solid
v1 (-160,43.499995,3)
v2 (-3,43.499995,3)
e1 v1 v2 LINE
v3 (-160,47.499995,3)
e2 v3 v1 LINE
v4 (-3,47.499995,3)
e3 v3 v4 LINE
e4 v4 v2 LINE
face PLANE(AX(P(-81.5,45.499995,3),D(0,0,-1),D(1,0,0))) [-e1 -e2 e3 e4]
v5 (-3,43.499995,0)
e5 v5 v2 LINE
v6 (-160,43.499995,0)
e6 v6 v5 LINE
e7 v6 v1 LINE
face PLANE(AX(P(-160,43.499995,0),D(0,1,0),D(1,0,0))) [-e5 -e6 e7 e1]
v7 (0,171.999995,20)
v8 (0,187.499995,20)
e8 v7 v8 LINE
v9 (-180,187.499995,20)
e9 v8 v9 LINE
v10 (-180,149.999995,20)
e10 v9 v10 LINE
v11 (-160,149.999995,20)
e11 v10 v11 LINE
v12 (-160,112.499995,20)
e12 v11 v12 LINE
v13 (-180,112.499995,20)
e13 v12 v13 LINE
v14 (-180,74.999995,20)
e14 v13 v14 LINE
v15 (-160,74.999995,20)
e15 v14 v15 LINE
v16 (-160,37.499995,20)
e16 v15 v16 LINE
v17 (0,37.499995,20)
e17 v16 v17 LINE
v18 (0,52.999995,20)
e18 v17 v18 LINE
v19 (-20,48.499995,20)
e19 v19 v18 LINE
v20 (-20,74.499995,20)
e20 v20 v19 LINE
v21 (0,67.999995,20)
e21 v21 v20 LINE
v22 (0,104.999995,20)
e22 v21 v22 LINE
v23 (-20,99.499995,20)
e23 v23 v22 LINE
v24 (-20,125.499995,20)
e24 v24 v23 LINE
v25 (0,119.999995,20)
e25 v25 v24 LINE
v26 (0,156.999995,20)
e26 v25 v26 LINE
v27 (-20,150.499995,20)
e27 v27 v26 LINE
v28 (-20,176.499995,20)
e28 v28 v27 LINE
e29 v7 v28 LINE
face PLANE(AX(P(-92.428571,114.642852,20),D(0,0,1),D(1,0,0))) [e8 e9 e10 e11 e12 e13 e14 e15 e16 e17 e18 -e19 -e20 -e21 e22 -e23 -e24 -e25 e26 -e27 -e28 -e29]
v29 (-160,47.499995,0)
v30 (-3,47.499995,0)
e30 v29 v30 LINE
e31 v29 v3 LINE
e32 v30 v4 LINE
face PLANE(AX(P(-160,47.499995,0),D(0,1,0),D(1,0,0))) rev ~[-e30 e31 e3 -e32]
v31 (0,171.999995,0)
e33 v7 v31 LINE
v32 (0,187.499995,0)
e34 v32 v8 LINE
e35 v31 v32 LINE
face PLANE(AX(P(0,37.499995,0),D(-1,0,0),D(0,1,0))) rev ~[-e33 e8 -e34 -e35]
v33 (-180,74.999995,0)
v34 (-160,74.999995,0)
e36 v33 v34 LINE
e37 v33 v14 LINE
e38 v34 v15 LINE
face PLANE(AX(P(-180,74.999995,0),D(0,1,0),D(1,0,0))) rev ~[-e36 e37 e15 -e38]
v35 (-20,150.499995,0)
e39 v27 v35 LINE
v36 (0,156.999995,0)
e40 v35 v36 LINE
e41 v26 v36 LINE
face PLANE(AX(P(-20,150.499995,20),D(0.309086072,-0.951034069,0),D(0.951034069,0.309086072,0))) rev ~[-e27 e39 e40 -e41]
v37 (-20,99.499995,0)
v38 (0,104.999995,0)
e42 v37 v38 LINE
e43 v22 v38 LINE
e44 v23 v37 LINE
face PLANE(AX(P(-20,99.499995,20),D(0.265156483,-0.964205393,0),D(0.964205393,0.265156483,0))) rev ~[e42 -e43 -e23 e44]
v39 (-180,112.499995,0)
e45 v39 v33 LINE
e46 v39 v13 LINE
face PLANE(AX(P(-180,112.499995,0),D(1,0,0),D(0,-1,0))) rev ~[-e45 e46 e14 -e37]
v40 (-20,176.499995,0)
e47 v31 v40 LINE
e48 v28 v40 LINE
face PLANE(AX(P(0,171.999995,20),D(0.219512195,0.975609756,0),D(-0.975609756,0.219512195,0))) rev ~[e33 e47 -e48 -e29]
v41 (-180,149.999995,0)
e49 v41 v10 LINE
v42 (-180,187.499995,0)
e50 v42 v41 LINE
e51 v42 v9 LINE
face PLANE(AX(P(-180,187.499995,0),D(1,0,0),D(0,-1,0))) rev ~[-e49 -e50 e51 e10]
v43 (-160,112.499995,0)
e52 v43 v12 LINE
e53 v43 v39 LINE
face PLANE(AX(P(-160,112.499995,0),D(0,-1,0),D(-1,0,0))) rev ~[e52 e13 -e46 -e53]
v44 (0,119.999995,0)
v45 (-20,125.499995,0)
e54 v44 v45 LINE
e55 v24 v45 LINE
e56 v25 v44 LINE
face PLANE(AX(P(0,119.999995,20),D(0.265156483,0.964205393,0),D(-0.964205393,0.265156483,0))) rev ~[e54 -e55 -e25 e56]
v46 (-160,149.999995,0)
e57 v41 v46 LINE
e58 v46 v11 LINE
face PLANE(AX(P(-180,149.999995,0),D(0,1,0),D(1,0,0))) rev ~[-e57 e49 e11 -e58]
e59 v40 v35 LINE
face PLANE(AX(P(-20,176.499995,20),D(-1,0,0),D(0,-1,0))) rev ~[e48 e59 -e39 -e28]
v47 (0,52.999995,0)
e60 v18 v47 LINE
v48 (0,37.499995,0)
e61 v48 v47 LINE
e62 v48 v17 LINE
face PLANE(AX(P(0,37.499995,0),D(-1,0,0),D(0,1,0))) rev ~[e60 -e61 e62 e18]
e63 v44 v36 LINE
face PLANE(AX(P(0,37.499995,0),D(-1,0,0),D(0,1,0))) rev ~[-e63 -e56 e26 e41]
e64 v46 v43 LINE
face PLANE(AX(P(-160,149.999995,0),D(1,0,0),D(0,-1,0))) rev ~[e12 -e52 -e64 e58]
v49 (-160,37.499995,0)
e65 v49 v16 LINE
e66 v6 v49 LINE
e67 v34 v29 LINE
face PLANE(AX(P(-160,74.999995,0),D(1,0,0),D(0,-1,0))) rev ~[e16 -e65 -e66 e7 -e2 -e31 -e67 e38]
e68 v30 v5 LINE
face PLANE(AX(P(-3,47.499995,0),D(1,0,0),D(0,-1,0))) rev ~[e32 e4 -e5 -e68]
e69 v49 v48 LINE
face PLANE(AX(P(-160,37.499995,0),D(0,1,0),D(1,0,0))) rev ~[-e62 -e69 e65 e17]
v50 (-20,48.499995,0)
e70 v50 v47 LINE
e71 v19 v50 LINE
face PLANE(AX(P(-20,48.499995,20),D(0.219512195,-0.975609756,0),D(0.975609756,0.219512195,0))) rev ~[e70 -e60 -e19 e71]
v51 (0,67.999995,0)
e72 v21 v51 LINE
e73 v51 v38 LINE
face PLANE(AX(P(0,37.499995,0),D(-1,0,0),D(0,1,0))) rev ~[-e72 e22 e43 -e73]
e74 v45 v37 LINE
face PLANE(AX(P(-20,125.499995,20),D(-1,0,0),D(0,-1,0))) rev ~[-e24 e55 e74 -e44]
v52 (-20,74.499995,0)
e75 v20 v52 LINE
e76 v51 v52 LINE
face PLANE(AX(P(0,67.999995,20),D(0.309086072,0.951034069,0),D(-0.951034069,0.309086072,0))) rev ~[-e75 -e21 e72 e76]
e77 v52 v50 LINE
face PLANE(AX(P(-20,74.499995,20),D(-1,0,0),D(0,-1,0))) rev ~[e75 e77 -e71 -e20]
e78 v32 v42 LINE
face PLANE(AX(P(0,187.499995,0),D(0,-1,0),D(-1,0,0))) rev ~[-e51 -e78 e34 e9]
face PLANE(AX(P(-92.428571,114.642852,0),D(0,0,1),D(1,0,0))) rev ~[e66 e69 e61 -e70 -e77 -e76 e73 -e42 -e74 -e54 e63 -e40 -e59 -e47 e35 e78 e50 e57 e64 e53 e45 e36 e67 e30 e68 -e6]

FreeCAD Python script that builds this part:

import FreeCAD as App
import Part
import Sketcher
from FreeCAD import Vector


def add_polygon(sketch, points):
    """Adds a closed chain of lines whose ends are joined by coincident constraints."""
    first, n = sketch.GeometryCount, len(points)
    for a, b in zip(points, points[1:] + points[:1]):
        sketch.addGeometry(Part.LineSegment(App.Vector(*a, 0), App.Vector(*b, 0)), False)
    for i in range(n):
        sketch.addConstraint(Sketcher.Constraint("Coincident", first + i, 2, first + (i + 1) % n, 1))

doc = App.newDocument("Part")
body = doc.addObject("PartDesign::Body", "Body")

# Sketch on XY plane
sketch1 = doc.addObject("Sketcher::SketchObject", "Sketch")
body.addObject(sketch1)
sketch1.AttachmentSupport = (doc.XY_Plane, [""])
sketch1.MapMode = "FlatFace"
add_polygon(sketch1, [(0, 187), (-180, 187), (-180, 150), (-160, 150), (-160, 112), (-180, 112), (-180, 75), (-160, 75), (-160, 37), (0, 37)])  # lines 0-9
sketch1.addConstraint([
    Sketcher.Constraint("Horizontal", 0),
    Sketcher.Constraint("Vertical", 1),
    Sketcher.Constraint("Horizontal", 2),
    Sketcher.Constraint("Vertical", 3),
    Sketcher.Constraint("Horizontal", 4),
    Sketcher.Constraint("Vertical", 5),
    Sketcher.Constraint("Horizontal", 6),
    Sketcher.Constraint("Vertical", 7),
    Sketcher.Constraint("Horizontal", 8),
    Sketcher.Constraint("Vertical", 9),
    Sketcher.Constraint("PointOnObject", 8, 2, -2),
    Sketcher.Constraint("Vertical", 1, 2, 4, 2),
    Sketcher.Constraint("Vertical", 3, 2, 6, 2),
    Sketcher.Constraint("Equal", 1, 3),
    Sketcher.Constraint("Equal", 3, 5),
    Sketcher.Constraint("Equal", 5, 7),
    Sketcher.Constraint("DistanceX", 0, 2, 0, 1, 180.0),
    Sketcher.Constraint("DistanceX", 2, 1, 2, 2, 20.0),
    Sketcher.Constraint("DistanceY", 9, 1, 9, 2, 150.0),
    Sketcher.Constraint("DistanceY", -1, 1, 0, 2, 187.499995),
])
pad1 = doc.addObject("PartDesign::Pad", "Pad")
body.addObject(pad1)
pad1.Profile = sketch1
pad1.Length = 20

# Sketch on XY plane
sketch2 = doc.addObject("Sketcher::SketchObject", "Sketch001")
body.addObject(sketch2)
sketch2.AttachmentSupport = (doc.XY_Plane, [""])
sketch2.MapMode = "FlatFace"
sketch2.AttachmentOffset = App.Placement(Vector(0, 0, 20), App.Rotation())
add_polygon(sketch2, [(0, 172), (-20, 176), (-20, 150), (0, 157)])  # lines 0-3
add_polygon(sketch2, [(0, 120), (-20, 125), (-20, 99), (0, 105)])  # lines 4-7
add_polygon(sketch2, [(0, 68), (-20, 74), (-20, 48), (0, 53)])  # lines 8-11
sketch2.addConstraint([
    Sketcher.Constraint("Vertical", 1),
    Sketcher.Constraint("Vertical", 3),
    Sketcher.Constraint("Vertical", 5),
    Sketcher.Constraint("Vertical", 7),
    Sketcher.Constraint("Vertical", 9),
    Sketcher.Constraint("Vertical", 11),
    Sketcher.Constraint("PointOnObject", 2, 2, -2),
    Sketcher.Constraint("PointOnObject", 6, 2, -2),
    Sketcher.Constraint("PointOnObject", 10, 2, -2),
    Sketcher.Constraint("Vertical", 1, 2, 4, 2),
    Sketcher.Constraint("Vertical", 5, 2, 8, 2),
    Sketcher.Constraint("Equal", 1, 5),
    Sketcher.Constraint("Equal", 3, 7),
    Sketcher.Constraint("Equal", 5, 9),
    Sketcher.Constraint("Equal", 7, 11),
    Sketcher.Constraint("Equal", 4, 6),
    Sketcher.Constraint("Equal", 2, 8),
    Sketcher.Constraint("DistanceY", 1, 2, 1, 1, 26.0),
    Sketcher.Constraint("DistanceY", 3, 1, 3, 2, 15.0),
    Sketcher.Constraint("DistanceX", 0, 2, -1, 1, 20.0),
    Sketcher.Constraint("DistanceY", 4, 2, 1, 2, 25.0),
    Sketcher.Constraint("DistanceY", 6, 2, 2, 2, 52.0),
    Sketcher.Constraint("DistanceY", 8, 2, 5, 2, 25.0),
    Sketcher.Constraint("DistanceY", -1, 1, 0, 2, 176.499995),
])
pocket1 = doc.addObject("PartDesign::Pocket", "Pocket")
body.addObject(pocket1)
pocket1.Profile = sketch2
pocket1.Length = 20

# Sketch on XY plane
sketch3 = doc.addObject("Sketcher::SketchObject", "Sketch002")
body.addObject(sketch3)
sketch3.AttachmentSupport = (doc.XY_Plane, [""])
sketch3.MapMode = "FlatFace"
add_polygon(sketch3, [(-160, 43.5), (-160, 47.5), (-3, 47.5), (-3, 43.5)])  # lines 0-3
sketch3.addConstraint([
    Sketcher.Constraint("Vertical", 0),
    Sketcher.Constraint("Horizontal", 1),
    Sketcher.Constraint("Vertical", 2),
    Sketcher.Constraint("Horizontal", 3),
    Sketcher.Constraint("DistanceX", 1, 1, 1, 2, 157.0),
    Sketcher.Constraint("DistanceY", 0, 1, 0, 2, 4.0),
    Sketcher.Constraint("DistanceX", 0, 2, -1, 1, 160.0),
    Sketcher.Constraint("DistanceY", -1, 1, 0, 2, 47.499995),
])
pocket2 = doc.addObject("PartDesign::Pocket", "Pocket001")
body.addObject(pocket2)
pocket2.Profile = sketch3
pocket2.Length = 3
pocket2.Reversed = True

doc.recompute()
